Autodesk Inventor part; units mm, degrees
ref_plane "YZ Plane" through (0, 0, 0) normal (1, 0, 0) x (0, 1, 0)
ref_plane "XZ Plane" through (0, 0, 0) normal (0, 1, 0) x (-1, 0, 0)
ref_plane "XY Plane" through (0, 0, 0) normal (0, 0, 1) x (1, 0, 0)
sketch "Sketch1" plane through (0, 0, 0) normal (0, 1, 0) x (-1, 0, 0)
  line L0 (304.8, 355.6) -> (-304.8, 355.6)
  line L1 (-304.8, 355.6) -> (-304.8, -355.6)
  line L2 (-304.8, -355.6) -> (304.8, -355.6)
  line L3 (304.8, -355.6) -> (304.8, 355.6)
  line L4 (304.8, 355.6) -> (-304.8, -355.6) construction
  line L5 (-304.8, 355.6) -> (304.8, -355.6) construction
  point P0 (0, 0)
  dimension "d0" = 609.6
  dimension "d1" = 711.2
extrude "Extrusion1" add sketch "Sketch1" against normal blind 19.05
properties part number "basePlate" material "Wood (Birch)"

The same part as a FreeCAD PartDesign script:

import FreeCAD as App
import Part
import Sketcher

V = App.Vector
Q = App.Units.Quantity


def add_polygon(sketch, points):
    """Adds a closed chain of lines whose ends are joined by coincident constraints."""
    first, n = sketch.GeometryCount, len(points)
    for a, b in zip(points, points[1:] + points[:1]):
        sketch.addGeometry(Part.LineSegment(App.Vector(*a, 0), App.Vector(*b, 0)), False)
    for i in range(n):
        sketch.addConstraint(Sketcher.Constraint("Coincident", first + i, 2, first + (i + 1) % n, 1))

doc = App.newDocument("Part")
body = doc.addObject("PartDesign::Body", "Body")

sketch1 = body.newObject("Sketcher::SketchObject", "Sketch")
sketch1.AttachmentSupport = (doc.getObject("XZ_Plane"), [""])
sketch1.MapMode = "FlatFace"
add_polygon(sketch1, [(-305, -356), (-305, 356), (305, 356), (305, -356)])
sketch1.addConstraint(Sketcher.Constraint("Vertical", 0))
sketch1.addConstraint(Sketcher.Constraint("Horizontal", 1))
sketch1.addConstraint(Sketcher.Constraint("Vertical", 2))
sketch1.addConstraint(Sketcher.Constraint("Horizontal", 3))
sketch1.addConstraint(Sketcher.Constraint("Symmetric", 0, 2, 2, 2, -1, 1))
sketch1.addConstraint(Sketcher.Constraint("DistanceX", 1, 1, 1, 2, Q("24 in")))
sketch1.addConstraint(Sketcher.Constraint("DistanceY", 0, 1, 0, 2, Q("28 in")))
pad1 = body.newObject("PartDesign::Pad", "Pad")
pad1.Profile = sketch1
pad1.Length = Q("0.75 in")

doc.recompute()
